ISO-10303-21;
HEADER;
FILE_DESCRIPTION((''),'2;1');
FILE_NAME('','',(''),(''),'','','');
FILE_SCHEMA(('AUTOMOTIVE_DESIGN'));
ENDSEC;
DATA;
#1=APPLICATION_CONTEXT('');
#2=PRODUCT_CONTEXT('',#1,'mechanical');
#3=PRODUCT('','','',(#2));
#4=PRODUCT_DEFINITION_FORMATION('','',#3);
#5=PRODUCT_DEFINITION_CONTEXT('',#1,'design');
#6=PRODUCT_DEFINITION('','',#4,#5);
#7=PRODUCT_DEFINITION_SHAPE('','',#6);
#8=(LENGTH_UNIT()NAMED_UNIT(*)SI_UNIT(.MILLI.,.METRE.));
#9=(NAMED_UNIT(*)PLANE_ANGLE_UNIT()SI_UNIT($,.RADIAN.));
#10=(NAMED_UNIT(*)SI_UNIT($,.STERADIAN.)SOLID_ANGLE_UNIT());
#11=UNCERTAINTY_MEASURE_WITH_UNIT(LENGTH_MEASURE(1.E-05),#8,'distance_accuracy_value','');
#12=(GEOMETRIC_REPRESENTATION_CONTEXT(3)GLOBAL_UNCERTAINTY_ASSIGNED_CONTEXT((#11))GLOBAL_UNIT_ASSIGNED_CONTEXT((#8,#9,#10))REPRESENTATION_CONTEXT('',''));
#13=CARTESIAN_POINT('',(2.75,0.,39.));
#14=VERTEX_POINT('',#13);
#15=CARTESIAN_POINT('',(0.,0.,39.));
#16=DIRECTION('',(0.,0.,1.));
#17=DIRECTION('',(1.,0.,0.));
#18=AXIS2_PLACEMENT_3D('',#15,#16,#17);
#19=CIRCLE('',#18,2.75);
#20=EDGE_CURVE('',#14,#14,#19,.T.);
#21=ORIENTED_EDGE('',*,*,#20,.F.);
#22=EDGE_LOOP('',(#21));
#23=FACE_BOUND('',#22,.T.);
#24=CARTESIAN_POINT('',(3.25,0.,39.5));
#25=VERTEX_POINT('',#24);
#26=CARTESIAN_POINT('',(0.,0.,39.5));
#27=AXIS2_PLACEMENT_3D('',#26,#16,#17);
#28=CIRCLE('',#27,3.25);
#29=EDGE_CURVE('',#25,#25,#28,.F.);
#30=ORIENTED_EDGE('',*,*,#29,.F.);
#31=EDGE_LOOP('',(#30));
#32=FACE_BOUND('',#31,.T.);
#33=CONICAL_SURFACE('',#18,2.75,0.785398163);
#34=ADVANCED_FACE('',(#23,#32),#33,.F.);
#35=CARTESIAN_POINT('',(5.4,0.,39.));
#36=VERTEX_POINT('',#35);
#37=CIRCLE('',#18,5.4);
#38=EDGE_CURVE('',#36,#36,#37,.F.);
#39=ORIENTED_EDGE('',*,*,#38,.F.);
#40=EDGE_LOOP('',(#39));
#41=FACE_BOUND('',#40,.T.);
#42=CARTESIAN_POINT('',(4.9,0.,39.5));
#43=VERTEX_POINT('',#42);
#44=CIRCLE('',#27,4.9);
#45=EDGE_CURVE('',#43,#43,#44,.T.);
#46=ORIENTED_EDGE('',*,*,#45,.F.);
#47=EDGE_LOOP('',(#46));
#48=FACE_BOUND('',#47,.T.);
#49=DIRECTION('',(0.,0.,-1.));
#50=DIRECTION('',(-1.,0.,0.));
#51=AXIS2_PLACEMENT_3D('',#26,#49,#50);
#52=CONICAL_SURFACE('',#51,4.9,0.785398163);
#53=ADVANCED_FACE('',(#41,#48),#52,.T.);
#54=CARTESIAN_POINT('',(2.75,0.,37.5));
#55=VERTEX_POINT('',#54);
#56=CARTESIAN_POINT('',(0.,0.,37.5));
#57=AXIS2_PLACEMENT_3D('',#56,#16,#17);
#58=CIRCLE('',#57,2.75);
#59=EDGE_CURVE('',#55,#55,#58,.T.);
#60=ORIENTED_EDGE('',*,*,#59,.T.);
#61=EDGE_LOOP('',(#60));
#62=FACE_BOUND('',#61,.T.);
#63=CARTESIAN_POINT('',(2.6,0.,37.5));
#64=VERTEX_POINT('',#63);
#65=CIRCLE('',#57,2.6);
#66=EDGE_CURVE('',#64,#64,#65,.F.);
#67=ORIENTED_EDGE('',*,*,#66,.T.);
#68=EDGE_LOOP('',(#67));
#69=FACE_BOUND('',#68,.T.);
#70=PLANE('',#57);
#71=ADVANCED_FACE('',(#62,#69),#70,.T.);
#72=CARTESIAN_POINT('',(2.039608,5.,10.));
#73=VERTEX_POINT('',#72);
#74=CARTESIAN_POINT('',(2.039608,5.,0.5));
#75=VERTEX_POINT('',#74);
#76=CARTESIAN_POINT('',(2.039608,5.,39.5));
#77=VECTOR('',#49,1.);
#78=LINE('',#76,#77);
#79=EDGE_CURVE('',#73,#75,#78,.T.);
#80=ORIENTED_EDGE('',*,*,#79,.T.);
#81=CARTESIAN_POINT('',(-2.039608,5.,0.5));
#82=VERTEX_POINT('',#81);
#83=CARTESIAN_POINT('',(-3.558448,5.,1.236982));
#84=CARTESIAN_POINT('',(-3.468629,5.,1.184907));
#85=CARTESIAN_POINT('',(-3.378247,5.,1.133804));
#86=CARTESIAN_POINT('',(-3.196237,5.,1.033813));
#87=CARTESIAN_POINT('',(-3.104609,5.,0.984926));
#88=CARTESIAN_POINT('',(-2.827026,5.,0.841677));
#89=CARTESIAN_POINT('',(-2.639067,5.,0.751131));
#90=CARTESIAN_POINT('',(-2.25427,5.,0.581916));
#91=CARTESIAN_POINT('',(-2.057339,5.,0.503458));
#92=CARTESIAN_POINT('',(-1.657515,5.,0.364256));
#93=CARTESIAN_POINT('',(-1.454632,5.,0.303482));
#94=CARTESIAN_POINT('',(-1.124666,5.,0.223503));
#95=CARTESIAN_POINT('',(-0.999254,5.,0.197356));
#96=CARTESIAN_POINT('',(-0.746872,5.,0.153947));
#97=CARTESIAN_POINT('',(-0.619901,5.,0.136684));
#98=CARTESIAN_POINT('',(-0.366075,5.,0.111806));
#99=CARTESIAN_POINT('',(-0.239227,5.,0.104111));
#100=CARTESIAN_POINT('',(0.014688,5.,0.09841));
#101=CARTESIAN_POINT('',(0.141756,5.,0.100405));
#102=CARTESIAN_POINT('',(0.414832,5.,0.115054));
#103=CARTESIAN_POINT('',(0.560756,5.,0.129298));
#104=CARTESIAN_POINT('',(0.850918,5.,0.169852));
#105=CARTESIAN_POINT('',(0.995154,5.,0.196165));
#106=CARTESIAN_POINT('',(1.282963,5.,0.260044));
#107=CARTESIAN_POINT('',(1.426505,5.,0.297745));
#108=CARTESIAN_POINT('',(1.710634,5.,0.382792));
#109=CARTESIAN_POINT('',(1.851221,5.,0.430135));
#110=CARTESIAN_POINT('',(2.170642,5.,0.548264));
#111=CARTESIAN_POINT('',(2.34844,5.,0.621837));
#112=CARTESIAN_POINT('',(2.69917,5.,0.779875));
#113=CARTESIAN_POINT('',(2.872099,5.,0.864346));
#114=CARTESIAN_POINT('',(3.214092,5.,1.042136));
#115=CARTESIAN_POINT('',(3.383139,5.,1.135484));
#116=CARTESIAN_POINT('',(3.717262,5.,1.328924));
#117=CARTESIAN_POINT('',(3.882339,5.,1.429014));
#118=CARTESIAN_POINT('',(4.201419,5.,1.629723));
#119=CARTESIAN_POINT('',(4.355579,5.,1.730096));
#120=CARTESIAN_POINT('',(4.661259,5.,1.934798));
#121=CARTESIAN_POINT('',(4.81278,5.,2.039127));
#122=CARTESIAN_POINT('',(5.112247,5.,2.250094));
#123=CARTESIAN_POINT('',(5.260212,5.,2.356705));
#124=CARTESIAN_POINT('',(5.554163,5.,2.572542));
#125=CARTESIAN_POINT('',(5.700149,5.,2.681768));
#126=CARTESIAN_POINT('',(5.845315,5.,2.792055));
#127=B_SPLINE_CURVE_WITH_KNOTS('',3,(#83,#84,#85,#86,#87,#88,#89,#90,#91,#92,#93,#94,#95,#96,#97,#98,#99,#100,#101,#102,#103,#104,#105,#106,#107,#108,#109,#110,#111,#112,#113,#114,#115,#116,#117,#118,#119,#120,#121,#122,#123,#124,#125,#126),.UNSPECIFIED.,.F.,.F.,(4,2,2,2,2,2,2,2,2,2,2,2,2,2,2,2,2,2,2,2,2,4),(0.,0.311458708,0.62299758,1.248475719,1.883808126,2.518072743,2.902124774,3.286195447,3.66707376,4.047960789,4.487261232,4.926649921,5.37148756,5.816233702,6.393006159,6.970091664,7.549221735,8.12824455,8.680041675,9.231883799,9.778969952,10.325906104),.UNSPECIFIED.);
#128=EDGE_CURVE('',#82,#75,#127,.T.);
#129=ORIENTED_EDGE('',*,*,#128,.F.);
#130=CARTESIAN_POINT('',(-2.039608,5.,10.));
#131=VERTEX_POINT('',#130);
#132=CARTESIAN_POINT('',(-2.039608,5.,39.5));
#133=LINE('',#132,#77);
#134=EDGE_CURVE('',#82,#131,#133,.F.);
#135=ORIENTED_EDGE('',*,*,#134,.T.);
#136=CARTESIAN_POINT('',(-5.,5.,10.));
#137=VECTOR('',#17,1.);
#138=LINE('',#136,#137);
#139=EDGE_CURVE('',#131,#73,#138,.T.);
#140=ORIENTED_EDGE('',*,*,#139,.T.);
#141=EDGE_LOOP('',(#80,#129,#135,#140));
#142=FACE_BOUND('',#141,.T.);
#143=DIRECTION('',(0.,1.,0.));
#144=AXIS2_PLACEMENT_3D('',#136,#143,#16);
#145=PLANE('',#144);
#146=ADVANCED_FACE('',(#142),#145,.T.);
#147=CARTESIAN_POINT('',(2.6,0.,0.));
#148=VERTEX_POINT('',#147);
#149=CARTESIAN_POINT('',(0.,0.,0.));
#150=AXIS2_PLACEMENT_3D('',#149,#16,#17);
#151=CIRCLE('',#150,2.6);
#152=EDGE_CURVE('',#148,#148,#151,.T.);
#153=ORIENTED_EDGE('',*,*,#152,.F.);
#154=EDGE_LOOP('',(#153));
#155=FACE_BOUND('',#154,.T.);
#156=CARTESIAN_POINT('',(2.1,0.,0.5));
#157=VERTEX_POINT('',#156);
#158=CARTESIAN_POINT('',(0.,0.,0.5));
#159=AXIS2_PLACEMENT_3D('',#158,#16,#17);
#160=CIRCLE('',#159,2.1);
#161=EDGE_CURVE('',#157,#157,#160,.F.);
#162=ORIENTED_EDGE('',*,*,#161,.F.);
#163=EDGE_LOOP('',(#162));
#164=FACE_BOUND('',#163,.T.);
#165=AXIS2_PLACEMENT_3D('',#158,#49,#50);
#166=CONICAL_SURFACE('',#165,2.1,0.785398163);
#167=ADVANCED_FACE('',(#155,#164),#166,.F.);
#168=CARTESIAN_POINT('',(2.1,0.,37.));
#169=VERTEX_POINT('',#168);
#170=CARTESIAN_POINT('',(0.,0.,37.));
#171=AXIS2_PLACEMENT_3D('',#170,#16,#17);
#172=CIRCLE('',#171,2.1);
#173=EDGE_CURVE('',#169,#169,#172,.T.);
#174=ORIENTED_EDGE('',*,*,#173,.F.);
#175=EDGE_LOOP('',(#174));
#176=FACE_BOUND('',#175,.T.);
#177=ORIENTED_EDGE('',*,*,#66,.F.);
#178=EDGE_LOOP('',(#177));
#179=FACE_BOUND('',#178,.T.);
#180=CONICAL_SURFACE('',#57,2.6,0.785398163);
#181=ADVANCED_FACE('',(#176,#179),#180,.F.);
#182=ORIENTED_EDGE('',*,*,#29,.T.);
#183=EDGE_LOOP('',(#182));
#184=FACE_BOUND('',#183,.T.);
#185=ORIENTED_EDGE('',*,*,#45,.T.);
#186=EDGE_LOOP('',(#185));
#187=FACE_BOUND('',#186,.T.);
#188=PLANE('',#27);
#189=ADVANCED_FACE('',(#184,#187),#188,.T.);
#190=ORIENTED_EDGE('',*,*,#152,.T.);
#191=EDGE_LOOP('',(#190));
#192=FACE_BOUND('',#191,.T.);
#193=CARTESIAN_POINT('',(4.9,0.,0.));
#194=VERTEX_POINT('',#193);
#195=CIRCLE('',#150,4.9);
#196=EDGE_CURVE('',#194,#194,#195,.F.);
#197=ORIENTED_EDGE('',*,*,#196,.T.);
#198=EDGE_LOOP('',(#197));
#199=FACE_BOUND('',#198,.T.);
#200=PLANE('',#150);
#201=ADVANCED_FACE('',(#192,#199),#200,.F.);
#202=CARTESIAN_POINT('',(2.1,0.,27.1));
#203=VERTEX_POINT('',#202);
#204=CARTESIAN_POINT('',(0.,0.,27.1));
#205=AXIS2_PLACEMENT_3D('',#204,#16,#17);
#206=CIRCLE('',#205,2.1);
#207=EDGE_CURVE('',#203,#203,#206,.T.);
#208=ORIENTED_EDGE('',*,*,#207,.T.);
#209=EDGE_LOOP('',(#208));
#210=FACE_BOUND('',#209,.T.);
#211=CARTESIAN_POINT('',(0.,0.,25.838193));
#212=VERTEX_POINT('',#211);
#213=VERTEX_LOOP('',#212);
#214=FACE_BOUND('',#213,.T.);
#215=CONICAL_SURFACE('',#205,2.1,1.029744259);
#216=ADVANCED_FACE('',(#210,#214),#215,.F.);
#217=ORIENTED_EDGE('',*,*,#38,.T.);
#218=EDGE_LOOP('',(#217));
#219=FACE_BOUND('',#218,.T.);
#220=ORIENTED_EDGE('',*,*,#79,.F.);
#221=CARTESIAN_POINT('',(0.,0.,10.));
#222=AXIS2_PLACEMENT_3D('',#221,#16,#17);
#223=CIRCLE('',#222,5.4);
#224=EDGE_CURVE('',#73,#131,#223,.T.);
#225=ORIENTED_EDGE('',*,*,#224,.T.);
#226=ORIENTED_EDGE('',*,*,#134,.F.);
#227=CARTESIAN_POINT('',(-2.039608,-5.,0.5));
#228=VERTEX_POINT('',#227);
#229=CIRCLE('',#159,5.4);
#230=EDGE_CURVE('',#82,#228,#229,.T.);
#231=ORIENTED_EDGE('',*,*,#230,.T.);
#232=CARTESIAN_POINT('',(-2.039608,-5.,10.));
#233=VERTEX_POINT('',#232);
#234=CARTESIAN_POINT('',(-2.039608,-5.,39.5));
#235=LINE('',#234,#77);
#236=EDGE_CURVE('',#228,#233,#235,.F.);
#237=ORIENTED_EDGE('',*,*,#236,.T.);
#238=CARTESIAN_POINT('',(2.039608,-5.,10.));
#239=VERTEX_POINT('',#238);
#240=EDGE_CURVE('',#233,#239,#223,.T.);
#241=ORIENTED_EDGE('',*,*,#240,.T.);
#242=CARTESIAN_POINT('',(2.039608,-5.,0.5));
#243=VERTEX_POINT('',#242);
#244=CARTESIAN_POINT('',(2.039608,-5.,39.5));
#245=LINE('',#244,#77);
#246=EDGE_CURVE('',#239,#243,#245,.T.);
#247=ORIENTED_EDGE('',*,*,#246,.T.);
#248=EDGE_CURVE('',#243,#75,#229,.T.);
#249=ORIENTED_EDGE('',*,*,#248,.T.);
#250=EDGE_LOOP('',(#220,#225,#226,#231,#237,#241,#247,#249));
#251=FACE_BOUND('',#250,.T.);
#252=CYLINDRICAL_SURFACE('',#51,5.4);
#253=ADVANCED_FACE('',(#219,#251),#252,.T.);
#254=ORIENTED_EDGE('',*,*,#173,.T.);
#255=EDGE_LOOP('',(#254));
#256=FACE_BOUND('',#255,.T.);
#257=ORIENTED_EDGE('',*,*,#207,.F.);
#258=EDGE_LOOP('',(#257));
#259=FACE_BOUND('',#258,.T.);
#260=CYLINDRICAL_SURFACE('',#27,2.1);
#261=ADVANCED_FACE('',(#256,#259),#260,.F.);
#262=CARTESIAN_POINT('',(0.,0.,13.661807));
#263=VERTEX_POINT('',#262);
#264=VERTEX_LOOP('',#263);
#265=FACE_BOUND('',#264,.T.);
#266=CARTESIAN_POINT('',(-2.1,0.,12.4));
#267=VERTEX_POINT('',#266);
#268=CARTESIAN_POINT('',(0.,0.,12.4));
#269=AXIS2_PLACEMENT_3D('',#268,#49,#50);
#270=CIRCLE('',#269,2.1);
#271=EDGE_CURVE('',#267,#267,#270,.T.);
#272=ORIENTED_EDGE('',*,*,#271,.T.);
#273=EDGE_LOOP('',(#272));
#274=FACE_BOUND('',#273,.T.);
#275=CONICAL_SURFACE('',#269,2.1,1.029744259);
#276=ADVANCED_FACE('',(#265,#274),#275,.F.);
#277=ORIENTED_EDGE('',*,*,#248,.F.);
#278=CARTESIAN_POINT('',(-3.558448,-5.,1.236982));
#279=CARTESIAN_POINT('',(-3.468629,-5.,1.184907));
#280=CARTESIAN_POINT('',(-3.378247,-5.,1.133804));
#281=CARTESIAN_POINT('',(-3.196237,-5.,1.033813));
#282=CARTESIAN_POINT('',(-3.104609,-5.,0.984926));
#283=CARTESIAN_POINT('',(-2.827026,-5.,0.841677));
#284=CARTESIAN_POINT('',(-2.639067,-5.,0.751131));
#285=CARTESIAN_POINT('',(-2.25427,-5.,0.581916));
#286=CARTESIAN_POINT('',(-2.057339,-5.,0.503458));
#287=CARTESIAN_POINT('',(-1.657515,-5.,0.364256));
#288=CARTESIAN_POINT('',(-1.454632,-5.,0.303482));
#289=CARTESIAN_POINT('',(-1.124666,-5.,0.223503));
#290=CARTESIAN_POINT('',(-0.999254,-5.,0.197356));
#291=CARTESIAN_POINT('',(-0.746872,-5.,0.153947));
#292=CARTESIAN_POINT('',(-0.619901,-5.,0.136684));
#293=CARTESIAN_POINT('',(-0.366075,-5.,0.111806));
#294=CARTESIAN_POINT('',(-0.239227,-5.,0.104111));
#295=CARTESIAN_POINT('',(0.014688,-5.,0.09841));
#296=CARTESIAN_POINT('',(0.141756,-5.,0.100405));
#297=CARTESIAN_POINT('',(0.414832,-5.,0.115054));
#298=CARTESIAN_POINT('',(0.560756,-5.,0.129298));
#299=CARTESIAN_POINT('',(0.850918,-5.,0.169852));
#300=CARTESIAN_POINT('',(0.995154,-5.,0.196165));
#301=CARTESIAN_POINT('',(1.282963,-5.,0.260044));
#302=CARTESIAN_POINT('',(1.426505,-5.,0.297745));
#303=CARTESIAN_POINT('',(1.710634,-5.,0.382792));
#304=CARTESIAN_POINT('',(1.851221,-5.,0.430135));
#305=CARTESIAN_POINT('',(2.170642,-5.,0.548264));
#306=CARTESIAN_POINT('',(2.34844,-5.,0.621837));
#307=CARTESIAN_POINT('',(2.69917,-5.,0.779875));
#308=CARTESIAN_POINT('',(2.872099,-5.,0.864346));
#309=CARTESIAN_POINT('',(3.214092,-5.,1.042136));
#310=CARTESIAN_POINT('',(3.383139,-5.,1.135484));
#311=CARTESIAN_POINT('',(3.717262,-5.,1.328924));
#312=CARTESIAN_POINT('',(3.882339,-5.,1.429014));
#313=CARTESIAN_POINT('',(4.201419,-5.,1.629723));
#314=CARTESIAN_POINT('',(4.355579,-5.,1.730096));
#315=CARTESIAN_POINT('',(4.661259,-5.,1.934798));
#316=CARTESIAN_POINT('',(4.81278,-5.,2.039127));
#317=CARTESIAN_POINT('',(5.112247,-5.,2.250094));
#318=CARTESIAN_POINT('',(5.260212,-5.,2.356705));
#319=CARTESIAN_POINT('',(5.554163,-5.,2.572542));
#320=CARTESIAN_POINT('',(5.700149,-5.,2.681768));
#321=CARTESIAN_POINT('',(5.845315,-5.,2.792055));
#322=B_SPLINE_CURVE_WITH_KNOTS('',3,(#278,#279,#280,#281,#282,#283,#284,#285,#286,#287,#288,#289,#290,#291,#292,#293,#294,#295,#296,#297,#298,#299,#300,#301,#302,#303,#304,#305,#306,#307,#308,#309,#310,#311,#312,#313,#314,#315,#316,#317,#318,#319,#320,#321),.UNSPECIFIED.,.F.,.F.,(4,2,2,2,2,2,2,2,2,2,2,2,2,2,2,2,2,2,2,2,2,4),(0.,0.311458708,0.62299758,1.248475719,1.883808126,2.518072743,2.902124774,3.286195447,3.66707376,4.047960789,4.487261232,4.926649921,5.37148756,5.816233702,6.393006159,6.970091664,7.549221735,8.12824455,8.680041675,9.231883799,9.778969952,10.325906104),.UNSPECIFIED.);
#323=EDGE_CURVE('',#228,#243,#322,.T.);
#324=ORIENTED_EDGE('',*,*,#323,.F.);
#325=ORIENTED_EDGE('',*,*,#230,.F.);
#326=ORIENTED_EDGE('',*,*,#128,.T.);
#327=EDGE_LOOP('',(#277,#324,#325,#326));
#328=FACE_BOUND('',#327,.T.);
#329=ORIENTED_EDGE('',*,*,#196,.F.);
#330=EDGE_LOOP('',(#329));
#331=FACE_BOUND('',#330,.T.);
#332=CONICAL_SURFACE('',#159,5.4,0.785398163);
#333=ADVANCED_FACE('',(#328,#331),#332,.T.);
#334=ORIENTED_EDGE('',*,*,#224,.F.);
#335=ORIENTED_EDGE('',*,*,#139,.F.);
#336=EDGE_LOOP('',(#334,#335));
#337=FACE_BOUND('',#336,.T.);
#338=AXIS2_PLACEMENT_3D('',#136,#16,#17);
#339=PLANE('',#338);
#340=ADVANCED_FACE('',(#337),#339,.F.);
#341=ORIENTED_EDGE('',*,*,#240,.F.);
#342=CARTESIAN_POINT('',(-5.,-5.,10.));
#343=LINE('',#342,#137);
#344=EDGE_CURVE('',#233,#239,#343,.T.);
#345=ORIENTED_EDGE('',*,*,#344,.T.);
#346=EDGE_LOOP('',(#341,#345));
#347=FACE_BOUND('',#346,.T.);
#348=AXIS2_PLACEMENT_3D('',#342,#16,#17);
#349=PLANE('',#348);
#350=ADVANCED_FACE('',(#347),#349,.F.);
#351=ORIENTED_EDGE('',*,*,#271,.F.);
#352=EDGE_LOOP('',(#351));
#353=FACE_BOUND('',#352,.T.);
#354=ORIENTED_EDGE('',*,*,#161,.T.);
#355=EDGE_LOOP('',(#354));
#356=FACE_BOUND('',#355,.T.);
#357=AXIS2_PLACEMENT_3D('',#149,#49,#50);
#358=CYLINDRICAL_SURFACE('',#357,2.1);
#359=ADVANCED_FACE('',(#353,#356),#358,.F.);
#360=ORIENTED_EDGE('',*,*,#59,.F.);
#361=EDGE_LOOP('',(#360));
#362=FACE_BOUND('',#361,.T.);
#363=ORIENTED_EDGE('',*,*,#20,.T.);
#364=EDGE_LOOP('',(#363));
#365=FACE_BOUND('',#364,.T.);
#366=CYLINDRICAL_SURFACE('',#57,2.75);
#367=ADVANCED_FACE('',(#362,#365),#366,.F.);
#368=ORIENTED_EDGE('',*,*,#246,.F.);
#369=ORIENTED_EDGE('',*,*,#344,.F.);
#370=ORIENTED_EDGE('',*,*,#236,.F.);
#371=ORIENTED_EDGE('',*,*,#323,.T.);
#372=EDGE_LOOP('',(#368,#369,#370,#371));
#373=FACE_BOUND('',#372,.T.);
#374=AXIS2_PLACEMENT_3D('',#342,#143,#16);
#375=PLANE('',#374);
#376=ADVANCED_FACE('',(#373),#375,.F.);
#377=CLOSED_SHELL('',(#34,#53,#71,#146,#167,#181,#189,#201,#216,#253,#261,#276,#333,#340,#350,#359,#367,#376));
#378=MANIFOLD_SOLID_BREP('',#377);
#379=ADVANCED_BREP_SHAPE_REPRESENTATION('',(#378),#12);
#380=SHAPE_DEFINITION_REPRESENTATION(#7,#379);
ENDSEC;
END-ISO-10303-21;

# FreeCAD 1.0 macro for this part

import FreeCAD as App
import Part
import Sketcher


def edges_at(feature, points):
    """Names of the edges that pass closest to the given points."""
    edges = feature.Shape.Edges
    near = lambda p: min(range(len(edges)), key=lambda i: edges[i].distToShape(Part.Vertex(*p))[0])
    return sorted({f"Edge{near(p) + 1}" for p in points})

doc = App.newDocument("Part")
params = doc.addObject("Spreadsheet::Sheet", "Params")
for row, (alias, value) in enumerate([
    ("sketch1_diameter", "10.8 mm"),
    ("pad1_length", "39.5 mm"),
    ("sketch2_diameter", "4.2 mm"),
    ("hole_diameter", "4.2 mm"),
    ("hole_depth", "12.4 mm"),
    ("chamfer_size", "0.5 mm"),
    ("sketch3_diameter", "5.5 mm"),
    ("pocket1_length", "2 mm"),
    ("chamfer2_size", "0.5 mm"),
    ("chamfer3_size", "0.5 mm"),
    ("sketch4_diameter", "4.2 mm"),
    ("hole2_diameter", "4.2 mm"),
    ("hole2_depth", "12.4 mm"),
    ("chamfer4_size", "0.5 mm"),
    ("sketch5_width", "10 mm"),
    ("sketch5_height", "2 mm"),
    ("pocket2_length", "10 mm"),
], start=1):
    params.set(f"A{row}", alias)
    params.set(f"B{row}", "=" + value)
    params.setAlias(f"B{row}", alias)

body = doc.addObject("PartDesign::Body", "Body")

# Sketch on XY plane
sketch1 = body.newObject("Sketcher::SketchObject", "Sketch")
sketch1.AttachmentSupport = (doc.getObject("XY_Plane"), [""])
sketch1.MapMode = "FlatFace"
sketch1.addGeometry(Part.Circle(App.Vector(0, 0, 0), App.Vector(0, 0, 1), 5), False)
sketch1.addConstraint(Sketcher.Constraint("Coincident", 0, 3, -1, 1))
sketch1.addConstraint(Sketcher.Constraint("Diameter", 0, 10.8))
sketch1.setExpression("Constraints[1]", "Params.sketch1_diameter")
pad1 = body.newObject("PartDesign::Pad", "Pad")
pad1.Profile = sketch1
pad1.setExpression("Length", "Params.pad1_length")

# Sketch on XY plane
sketch2 = body.newObject("Sketcher::SketchObject", "Sketch001")
sketch2.AttachmentSupport = (doc.getObject("XY_Plane"), [""])
sketch2.MapMode = "FlatFace"
sketch2.AttachmentOffset = App.Placement(App.Vector(0, 0, 39.5), App.Rotation())
sketch2.addGeometry(Part.Circle(App.Vector(0, 0, 0), App.Vector(0, 0, 1), 2.1), False)
sketch2.addConstraint(Sketcher.Constraint("Coincident", 0, 3, -1, 1))
sketch2.addConstraint(Sketcher.Constraint("Diameter", 0, 4.2))
sketch2.setExpression("Constraints[1]", "Params.sketch2_diameter")
doc.recompute()
hole = body.newObject("PartDesign::Hole", "Hole")
hole.Profile = sketch2
hole.ThreadType = "None"
hole.setExpression("Diameter", "Params.hole_diameter")
hole.DepthType = "Dimension"
hole.setExpression("Depth", "Params.hole_depth")
hole.DrillPoint = "Angled"
hole.DrillPointAngle = 118
doc.recompute()

chamfer = body.newObject("PartDesign::Chamfer", "Chamfer")
chamfer.Base = (hole, edges_at(hole, [(-5.4, 0, 39.5)]))
chamfer.setExpression("Size", "Params.chamfer_size")

# Sketch on XY plane
sketch3 = body.newObject("Sketcher::SketchObject", "Sketch002")
sketch3.AttachmentSupport = (doc.getObject("XY_Plane"), [""])
sketch3.MapMode = "FlatFace"
sketch3.AttachmentOffset = App.Placement(App.Vector(0, 0, 39.5), App.Rotation())
sketch3.addGeometry(Part.Circle(App.Vector(0, 0, 0), App.Vector(0, 0, 1), 2.8), False)
sketch3.addConstraint(Sketcher.Constraint("Coincident", 0, 3, -1, 1))
sketch3.addConstraint(Sketcher.Constraint("Diameter", 0, 5.5))
sketch3.setExpression("Constraints[1]", "Params.sketch3_diameter")
pocket1 = body.newObject("PartDesign::Pocket", "Pocket")
pocket1.Profile = sketch3
pocket1.setExpression("Length", "Params.pocket1_length")
doc.recompute()

chamfer2 = body.newObject("PartDesign::Chamfer", "Chamfer001")
chamfer2.Base = (pocket1, edges_at(pocket1, [(-2.75, 0, 39.5), (2.1, 0, 37.5)]))
chamfer2.setExpression("Size", "Params.chamfer2_size")
doc.recompute()

chamfer3 = body.newObject("PartDesign::Chamfer", "Chamfer002")
chamfer3.Base = (chamfer2, edges_at(chamfer2, [(-5.4, 0, 0)]))
chamfer3.setExpression("Size", "Params.chamfer3_size")

# Sketch on XY plane
sketch4 = body.newObject("Sketcher::SketchObject", "Sketch003")
sketch4.AttachmentSupport = (doc.getObject("XY_Plane"), [""])
sketch4.MapMode = "FlatFace"
sketch4.addGeometry(Part.Circle(App.Vector(0, 0, 0), App.Vector(0, 0, 1), 2.1), False)
sketch4.addConstraint(Sketcher.Constraint("Coincident", 0, 3, -1, 1))
sketch4.addConstraint(Sketcher.Constraint("Diameter", 0, 4.2))
sketch4.setExpression("Constraints[1]", "Params.sketch4_diameter")
doc.recompute()
hole2 = body.newObject("PartDesign::Hole", "Hole001")
hole2.Profile = sketch4
hole2.ThreadType = "None"
hole2.setExpression("Diameter", "Params.hole2_diameter")
hole2.DepthType = "Dimension"
hole2.setExpression("Depth", "Params.hole2_depth")
hole2.DrillPoint = "Angled"
hole2.DrillPointAngle = 118
hole2.Reversed = True
doc.recompute()

chamfer4 = body.newObject("PartDesign::Chamfer", "Chamfer003")
chamfer4.Base = (hole2, edges_at(hole2, [(-2.1, 0, 0)]))
chamfer4.setExpression("Size", "Params.chamfer4_size")

# Sketch on XY plane
sketch5 = body.newObject("Sketcher::SketchObject", "Sketch004")
sketch5.AttachmentSupport = (doc.getObject("XY_Plane"), [""])
sketch5.MapMode = "FlatFace"
sketch5.addGeometry(Part.LineSegment(App.Vector(-5, 7, 0), App.Vector(-5, 5, 0)), False)
sketch5.addGeometry(Part.LineSegment(App.Vector(-5, 5, 0), App.Vector(5, 5, 0)), False)
sketch5.addGeometry(Part.LineSegment(App.Vector(5, 5, 0), App.Vector(5, 7, 0)), False)
sketch5.addGeometry(Part.LineSegment(App.Vector(5, 7, 0), App.Vector(-5, 7, 0)), False)
sketch5.addConstraint(Sketcher.Constraint("Coincident", 0, 2, 1, 1))
sketch5.addConstraint(Sketcher.Constraint("Coincident", 1, 2, 2, 1))
sketch5.addConstraint(Sketcher.Constraint("Coincident", 2, 2, 3, 1))
sketch5.addConstraint(Sketcher.Constraint("Coincident", 3, 2, 0, 1))
sketch5.addConstraint(Sketcher.Constraint("Vertical", 0))
sketch5.addConstraint(Sketcher.Constraint("Horizontal", 1))
sketch5.addConstraint(Sketcher.Constraint("Vertical", 2))
sketch5.addConstraint(Sketcher.Constraint("Horizontal", 3))
sketch5.addConstraint(Sketcher.Constraint("DistanceX", 1, 1, 1, 2, 10.0))
sketch5.addConstraint(Sketcher.Constraint("DistanceY", 0, 2, 0, 1, 2.0))
sketch5.addConstraint(Sketcher.Constraint("DistanceX", 0, 2, -1, 1, 5.0))
sketch5.addConstraint(Sketcher.Constraint("DistanceY", -1, 1, 0, 2, 5.0))
sketch5.setExpression("Constraints[8]", "Params.sketch5_width")
sketch5.setExpression("Constraints[9]", "Params.sketch5_height")
pocket2 = body.newObject("PartDesign::Pocket", "Pocket001")
pocket2.Profile = sketch5
pocket2.setExpression("Length", "Params.pocket2_length")
pocket2.Reversed = True
doc.recompute()

mirrored = body.newObject("PartDesign::Mirrored", "Mirrored")
mirrored.Originals = [pocket2]
mirrored.MirrorPlane = (doc.getObject("XZ_Plane"), [""])
body.Tip = mirrored

doc.recompute()
